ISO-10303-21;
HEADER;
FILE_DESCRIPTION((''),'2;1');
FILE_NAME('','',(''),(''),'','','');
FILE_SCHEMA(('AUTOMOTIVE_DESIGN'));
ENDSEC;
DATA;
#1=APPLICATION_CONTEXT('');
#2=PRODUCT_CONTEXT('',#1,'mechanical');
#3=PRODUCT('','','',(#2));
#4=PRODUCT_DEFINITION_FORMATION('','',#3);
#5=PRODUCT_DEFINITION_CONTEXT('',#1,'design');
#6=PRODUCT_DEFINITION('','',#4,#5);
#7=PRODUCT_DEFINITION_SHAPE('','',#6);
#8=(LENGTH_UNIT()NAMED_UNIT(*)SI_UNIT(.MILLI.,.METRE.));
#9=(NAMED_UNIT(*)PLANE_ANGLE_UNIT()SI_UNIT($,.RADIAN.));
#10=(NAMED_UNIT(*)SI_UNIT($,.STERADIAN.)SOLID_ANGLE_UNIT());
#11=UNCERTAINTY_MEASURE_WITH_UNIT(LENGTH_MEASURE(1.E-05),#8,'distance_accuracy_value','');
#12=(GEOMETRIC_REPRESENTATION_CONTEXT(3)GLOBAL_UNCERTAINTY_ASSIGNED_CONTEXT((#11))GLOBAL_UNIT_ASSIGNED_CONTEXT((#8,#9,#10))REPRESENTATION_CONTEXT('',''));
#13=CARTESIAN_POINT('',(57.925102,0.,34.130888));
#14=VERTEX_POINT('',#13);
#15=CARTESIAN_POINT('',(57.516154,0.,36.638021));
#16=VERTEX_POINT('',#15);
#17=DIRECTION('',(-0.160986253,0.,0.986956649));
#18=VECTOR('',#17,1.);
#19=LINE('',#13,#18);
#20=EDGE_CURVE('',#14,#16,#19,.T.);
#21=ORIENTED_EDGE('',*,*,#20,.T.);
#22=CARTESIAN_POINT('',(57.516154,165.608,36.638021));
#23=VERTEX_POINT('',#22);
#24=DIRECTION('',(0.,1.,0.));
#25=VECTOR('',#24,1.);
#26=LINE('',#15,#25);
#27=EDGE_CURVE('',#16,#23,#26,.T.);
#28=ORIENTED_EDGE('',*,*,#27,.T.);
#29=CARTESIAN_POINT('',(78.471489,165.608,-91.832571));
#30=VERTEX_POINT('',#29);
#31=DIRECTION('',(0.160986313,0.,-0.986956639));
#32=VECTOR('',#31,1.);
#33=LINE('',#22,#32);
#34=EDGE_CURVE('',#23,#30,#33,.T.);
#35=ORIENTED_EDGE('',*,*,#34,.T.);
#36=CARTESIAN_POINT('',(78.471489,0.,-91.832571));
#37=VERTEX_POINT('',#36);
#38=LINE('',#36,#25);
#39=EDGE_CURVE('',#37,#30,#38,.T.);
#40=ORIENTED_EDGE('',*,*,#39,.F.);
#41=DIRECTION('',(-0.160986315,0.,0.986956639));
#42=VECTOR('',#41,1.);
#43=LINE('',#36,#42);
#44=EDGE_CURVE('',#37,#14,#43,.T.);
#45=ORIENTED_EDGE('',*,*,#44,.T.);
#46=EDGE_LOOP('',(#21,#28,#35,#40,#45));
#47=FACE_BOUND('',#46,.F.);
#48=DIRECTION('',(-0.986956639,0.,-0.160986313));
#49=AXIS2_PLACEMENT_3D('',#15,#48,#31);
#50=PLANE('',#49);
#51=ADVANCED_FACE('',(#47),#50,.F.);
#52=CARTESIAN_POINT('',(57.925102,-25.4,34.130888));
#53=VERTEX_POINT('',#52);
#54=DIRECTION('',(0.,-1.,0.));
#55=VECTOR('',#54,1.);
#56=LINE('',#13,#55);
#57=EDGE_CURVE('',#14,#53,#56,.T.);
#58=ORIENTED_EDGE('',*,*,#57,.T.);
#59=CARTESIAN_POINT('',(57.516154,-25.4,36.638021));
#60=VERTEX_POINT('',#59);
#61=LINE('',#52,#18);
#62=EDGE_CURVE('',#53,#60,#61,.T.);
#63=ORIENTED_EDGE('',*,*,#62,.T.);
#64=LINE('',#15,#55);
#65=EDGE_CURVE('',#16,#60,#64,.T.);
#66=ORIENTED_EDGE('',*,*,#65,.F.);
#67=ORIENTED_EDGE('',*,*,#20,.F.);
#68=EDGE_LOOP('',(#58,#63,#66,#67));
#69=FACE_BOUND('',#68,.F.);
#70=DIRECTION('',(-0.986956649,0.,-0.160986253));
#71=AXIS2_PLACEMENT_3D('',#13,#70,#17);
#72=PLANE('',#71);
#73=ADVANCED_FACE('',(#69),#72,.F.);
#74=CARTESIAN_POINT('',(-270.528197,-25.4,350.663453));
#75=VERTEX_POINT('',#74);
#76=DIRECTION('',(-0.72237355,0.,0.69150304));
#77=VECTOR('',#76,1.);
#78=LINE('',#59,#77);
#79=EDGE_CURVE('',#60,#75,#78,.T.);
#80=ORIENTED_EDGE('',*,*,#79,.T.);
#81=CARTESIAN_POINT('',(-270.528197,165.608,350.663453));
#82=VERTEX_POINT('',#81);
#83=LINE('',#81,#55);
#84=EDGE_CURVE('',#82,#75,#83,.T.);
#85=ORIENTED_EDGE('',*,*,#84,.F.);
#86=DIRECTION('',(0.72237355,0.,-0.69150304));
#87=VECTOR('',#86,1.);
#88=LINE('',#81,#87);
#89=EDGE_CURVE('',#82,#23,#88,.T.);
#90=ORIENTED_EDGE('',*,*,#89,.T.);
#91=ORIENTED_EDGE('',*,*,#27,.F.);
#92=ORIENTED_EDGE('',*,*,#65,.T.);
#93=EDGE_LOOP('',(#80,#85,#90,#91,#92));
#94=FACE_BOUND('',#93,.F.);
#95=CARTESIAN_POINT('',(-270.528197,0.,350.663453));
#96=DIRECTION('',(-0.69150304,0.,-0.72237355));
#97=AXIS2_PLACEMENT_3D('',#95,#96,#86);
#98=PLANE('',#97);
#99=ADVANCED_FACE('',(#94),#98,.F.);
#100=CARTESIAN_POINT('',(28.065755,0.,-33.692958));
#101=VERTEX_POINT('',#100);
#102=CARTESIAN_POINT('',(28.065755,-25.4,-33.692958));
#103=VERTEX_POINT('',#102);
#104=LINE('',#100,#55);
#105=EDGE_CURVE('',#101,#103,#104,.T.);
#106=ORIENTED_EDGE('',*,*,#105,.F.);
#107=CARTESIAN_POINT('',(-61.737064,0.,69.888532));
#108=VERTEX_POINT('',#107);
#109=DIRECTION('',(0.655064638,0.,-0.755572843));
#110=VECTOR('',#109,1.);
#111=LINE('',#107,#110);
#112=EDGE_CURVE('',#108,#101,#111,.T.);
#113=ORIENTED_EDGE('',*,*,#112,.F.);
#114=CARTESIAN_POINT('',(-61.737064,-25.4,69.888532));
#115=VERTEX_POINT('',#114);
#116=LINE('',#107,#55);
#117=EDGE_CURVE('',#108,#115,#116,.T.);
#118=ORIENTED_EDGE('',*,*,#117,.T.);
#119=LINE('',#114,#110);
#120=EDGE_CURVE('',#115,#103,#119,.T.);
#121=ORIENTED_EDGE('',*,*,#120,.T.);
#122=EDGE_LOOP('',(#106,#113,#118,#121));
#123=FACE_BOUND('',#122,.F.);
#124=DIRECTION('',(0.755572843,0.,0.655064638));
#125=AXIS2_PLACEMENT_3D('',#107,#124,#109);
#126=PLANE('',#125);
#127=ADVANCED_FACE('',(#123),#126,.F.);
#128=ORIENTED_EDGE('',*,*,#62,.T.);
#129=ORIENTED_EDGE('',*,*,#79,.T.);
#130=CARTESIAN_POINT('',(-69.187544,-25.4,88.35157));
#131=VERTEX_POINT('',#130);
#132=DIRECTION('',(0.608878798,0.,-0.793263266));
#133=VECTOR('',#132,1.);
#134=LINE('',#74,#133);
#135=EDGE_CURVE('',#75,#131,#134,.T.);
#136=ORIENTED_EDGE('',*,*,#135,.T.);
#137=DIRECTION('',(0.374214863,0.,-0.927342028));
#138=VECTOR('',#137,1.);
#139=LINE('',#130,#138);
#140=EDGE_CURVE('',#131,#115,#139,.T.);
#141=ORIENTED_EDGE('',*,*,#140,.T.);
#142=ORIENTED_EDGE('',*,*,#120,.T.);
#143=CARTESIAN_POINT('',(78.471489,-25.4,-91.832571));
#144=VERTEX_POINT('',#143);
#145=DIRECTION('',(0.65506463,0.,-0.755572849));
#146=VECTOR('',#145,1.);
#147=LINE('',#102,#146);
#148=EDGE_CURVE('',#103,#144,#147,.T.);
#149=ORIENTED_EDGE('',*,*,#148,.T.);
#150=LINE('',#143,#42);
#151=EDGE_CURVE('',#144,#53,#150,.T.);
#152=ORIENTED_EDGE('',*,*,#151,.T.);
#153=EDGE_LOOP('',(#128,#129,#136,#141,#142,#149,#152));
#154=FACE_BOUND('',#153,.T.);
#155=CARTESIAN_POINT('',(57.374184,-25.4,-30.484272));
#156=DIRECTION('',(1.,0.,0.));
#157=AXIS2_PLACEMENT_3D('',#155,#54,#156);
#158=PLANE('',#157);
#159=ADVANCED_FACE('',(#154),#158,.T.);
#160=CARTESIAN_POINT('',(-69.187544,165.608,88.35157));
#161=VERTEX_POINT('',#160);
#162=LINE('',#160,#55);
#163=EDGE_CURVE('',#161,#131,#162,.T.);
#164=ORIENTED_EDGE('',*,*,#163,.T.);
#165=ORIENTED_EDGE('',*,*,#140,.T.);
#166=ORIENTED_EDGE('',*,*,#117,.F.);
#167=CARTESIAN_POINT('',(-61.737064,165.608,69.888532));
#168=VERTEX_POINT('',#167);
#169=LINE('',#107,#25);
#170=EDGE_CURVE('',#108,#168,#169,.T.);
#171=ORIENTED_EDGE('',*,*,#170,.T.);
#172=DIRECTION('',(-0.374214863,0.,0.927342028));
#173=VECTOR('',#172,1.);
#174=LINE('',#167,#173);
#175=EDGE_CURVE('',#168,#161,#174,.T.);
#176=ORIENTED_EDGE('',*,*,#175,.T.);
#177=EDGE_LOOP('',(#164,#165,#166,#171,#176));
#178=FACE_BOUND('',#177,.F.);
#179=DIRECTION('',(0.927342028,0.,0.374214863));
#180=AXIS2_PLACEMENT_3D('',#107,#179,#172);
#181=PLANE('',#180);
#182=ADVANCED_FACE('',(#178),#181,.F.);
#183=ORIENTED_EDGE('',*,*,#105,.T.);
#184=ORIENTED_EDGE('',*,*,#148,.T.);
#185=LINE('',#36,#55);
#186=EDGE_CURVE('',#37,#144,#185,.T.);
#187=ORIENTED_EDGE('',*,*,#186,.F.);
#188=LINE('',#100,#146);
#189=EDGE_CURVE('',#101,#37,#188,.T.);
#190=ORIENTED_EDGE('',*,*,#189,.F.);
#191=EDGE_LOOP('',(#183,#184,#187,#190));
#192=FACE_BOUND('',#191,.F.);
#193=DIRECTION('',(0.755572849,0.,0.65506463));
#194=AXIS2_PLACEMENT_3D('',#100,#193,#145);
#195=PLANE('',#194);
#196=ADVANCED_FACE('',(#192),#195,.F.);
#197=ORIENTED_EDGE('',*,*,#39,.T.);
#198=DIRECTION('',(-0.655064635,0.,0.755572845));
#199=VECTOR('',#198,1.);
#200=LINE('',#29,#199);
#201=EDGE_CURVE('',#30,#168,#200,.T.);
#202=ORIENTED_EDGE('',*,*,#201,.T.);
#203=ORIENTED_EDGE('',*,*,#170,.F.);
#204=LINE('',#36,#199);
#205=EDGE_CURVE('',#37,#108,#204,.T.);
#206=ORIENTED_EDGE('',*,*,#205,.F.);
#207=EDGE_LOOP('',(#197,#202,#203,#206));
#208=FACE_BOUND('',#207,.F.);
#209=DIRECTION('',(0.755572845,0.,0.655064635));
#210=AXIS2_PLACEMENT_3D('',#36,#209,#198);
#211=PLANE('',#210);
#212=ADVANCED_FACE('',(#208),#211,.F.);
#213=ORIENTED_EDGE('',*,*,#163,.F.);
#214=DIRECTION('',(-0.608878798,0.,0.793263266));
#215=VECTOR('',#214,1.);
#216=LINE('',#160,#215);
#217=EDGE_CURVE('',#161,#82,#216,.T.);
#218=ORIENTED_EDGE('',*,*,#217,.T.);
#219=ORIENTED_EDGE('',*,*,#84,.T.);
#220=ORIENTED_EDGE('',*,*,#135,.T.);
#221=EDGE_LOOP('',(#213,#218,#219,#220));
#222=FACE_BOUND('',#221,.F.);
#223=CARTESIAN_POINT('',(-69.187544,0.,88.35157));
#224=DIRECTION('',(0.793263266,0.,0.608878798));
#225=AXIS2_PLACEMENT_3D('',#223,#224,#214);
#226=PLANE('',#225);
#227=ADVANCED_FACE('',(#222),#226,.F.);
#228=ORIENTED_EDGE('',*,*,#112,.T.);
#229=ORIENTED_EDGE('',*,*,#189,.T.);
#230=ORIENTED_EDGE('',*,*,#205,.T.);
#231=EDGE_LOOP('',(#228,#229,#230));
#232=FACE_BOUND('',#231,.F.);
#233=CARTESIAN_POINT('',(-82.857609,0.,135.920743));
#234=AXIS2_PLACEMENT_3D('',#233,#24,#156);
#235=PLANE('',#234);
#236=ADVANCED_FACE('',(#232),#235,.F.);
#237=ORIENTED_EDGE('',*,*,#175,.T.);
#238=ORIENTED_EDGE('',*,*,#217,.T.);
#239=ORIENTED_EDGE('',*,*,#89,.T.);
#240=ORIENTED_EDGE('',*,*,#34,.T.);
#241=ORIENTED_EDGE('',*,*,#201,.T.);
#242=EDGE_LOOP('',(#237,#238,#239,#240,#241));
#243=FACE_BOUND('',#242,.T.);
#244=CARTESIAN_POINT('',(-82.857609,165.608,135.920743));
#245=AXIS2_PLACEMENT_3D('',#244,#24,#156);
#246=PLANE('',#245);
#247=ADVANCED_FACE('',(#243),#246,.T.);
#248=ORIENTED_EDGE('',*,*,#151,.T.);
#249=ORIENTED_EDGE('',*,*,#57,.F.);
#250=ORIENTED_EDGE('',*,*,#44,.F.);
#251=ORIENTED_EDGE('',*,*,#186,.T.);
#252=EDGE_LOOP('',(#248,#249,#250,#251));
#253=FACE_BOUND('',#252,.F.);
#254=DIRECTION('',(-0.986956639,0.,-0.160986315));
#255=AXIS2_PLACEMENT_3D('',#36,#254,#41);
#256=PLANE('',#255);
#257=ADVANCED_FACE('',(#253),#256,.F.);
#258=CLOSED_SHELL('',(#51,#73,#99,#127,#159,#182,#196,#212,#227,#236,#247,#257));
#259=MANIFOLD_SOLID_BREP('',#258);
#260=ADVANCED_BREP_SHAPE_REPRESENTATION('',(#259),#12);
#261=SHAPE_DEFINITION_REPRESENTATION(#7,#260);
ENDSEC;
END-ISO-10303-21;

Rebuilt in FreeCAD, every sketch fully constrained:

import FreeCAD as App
import Part
import Sketcher
from FreeCAD import Vector
Q = App.Units.Quantity

doc = App.newDocument("Part")
body = doc.addObject("PartDesign::Body", "Body")

sketch1 = body.newObject("Sketcher::SketchObject", "Sketch")
sketch1.AttachmentSupport = (doc.getObject("XZ_Plane"), [""])
sketch1.MapMode = "FlatFace"
sketch1.addGeometry(Part.LineSegment(Vector(28.1, -33.7, 0), Vector(78.5, -91.8, 0)), False)
sketch1.addGeometry(Part.LineSegment(Vector(78.5, -91.8, 0), Vector(57.9, 34.1, 0)), False)
sketch1.addGeometry(Part.LineSegment(Vector(57.9, 34.1, 0), Vector(57.5, 36.6, 0)), False)
sketch1.addGeometry(Part.LineSegment(Vector(57.5, 36.6, 0), Vector(-270.5, 350.7, 0)), False)
sketch1.addGeometry(Part.LineSegment(Vector(-270.5, 350.7, 0), Vector(-69.2, 88.4, 0)), False)
sketch1.addGeometry(Part.LineSegment(Vector(-69.2, 88.4, 0), Vector(-61.7, 69.9, 0)), False)
sketch1.addGeometry(Part.LineSegment(Vector(-61.7, 69.9, 0), Vector(28.1, -33.7, 0)), False)
sketch1.addConstraint(Sketcher.Constraint("Coincident", 0, 2, 1, 1))
sketch1.addConstraint(Sketcher.Constraint("Coincident", 1, 2, 2, 1))
sketch1.addConstraint(Sketcher.Constraint("Coincident", 2, 2, 3, 1))
sketch1.addConstraint(Sketcher.Constraint("Coincident", 3, 2, 4, 1))
sketch1.addConstraint(Sketcher.Constraint("Coincident", 4, 2, 5, 1))
sketch1.addConstraint(Sketcher.Constraint("Coincident", 5, 2, 6, 1))
sketch1.addConstraint(Sketcher.Constraint("Coincident", 6, 2, 0, 1))
sketch1.addConstraint(Sketcher.Constraint("Parallel", 1, 2))
sketch1.addConstraint(Sketcher.Constraint("Parallel", 0, 6))
sketch1.addConstraint(Sketcher.Constraint("DistanceX", 3, 2, 1, 2, Q("328.453299 mm")))
sketch1.addConstraint(Sketcher.Constraint("DistanceX", 4, 2, 2, 2, Q("126.703698 mm")))
sketch1.addConstraint(Sketcher.Constraint("DistanceX", 6, 2, 2, 2, Q("29.450399 mm")))
sketch1.addConstraint(Sketcher.Constraint("Distance", 1, Q("127.628159 mm")))
sketch1.addConstraint(Sketcher.Constraint("Distance", 5, Q("19.909631 mm")))
sketch1.addConstraint(Sketcher.Constraint("Distance", 6, Q("137.090012 mm")))
sketch1.addConstraint(Sketcher.Constraint("DistanceX", -1, 1, 0, 2, Q("78.471489 mm")))
sketch1.addConstraint(Sketcher.Constraint("DistanceY", 0, 2, -1, 1, Q("91.832571 mm")))
sketch1.addConstraint(Sketcher.Constraint("DistanceY", -1, 1, 2, 2, Q("36.638021 mm")))
sketch1.addConstraint(Sketcher.Constraint("DistanceY", -1, 1, 4, 2, Q("88.35157 mm")))
sketch1.addConstraint(Sketcher.Constraint("DistanceY", -1, 1, 5, 2, Q("69.888532 mm")))
sketch1.addConstraint(Sketcher.Constraint("DistanceY", 5, 2, 3, 2, Q("280.774921 mm")))
pad1 = body.newObject("PartDesign::Pad", "Pad")
pad1.Profile = sketch1
pad1.Length = Q("1 in")

sketch2 = body.newObject("Sketcher::SketchObject", "Sketch001")
sketch2.AttachmentSupport = (doc.getObject("XZ_Plane"), [""])
sketch2.MapMode = "FlatFace"
sketch2.addGeometry(Part.LineSegment(Vector(58, 37, 0), Vector(78, -92, 0)), False)
sketch2.addGeometry(Part.LineSegment(Vector(78, -92, 0), Vector(-62, 70, 0)), False)
sketch2.addGeometry(Part.LineSegment(Vector(-62, 70, 0), Vector(-69, 88, 0)), False)
sketch2.addGeometry(Part.LineSegment(Vector(-69, 88, 0), Vector(-271, 351, 0)), False)
sketch2.addGeometry(Part.LineSegment(Vector(-271, 351, 0), Vector(58, 37, 0)), False)
sketch2.addConstraint(Sketcher.Constraint("Coincident", 0, 2, 1, 1))
sketch2.addConstraint(Sketcher.Constraint("Coincident", 1, 2, 2, 1))
sketch2.addConstraint(Sketcher.Constraint("Coincident", 2, 2, 3, 1))
sketch2.addConstraint(Sketcher.Constraint("Coincident", 3, 2, 4, 1))
sketch2.addConstraint(Sketcher.Constraint("Coincident", 4, 2, 0, 1))
sketch2.addConstraint(Sketcher.Constraint("DistanceX", 2, 2, 4, 2, Q("126.703698 mm")))
sketch2.addConstraint(Sketcher.Constraint("Distance", 1, Q("214.037738 mm")))
sketch2.addConstraint(Sketcher.Constraint("Distance", 2, Q("19.909631 mm")))
sketch2.addConstraint(Sketcher.Constraint("DistanceX", -1, 1, 0, 2, Q("78.471489 mm")))
sketch2.addConstraint(Sketcher.Constraint("DistanceY", 0, 2, -1, 1, Q("91.832571 mm")))
sketch2.addConstraint(Sketcher.Constraint("DistanceY", -1, 1, 1, 2, Q("69.888532 mm")))
sketch2.addConstraint(Sketcher.Constraint("DistanceY", -1, 1, 2, 2, Q("88.35157 mm")))
sketch2.addConstraint(Sketcher.Constraint("DistanceY", -1, 1, 4, 2, Q("36.638021 mm")))
sketch2.addConstraint(Sketcher.Constraint("DistanceY", 1, 2, 3, 2, Q("280.774921 mm")))
sketch2.addConstraint(Sketcher.Constraint("DistanceX", 3, 2, 4, 2, Q("328.044351 mm")))
pad2 = body.newObject("PartDesign::Pad", "Pad001")
pad2.Profile = sketch2
pad2.Length = Q("6.52 in")
pad2.Reversed = True

doc.recompute()
